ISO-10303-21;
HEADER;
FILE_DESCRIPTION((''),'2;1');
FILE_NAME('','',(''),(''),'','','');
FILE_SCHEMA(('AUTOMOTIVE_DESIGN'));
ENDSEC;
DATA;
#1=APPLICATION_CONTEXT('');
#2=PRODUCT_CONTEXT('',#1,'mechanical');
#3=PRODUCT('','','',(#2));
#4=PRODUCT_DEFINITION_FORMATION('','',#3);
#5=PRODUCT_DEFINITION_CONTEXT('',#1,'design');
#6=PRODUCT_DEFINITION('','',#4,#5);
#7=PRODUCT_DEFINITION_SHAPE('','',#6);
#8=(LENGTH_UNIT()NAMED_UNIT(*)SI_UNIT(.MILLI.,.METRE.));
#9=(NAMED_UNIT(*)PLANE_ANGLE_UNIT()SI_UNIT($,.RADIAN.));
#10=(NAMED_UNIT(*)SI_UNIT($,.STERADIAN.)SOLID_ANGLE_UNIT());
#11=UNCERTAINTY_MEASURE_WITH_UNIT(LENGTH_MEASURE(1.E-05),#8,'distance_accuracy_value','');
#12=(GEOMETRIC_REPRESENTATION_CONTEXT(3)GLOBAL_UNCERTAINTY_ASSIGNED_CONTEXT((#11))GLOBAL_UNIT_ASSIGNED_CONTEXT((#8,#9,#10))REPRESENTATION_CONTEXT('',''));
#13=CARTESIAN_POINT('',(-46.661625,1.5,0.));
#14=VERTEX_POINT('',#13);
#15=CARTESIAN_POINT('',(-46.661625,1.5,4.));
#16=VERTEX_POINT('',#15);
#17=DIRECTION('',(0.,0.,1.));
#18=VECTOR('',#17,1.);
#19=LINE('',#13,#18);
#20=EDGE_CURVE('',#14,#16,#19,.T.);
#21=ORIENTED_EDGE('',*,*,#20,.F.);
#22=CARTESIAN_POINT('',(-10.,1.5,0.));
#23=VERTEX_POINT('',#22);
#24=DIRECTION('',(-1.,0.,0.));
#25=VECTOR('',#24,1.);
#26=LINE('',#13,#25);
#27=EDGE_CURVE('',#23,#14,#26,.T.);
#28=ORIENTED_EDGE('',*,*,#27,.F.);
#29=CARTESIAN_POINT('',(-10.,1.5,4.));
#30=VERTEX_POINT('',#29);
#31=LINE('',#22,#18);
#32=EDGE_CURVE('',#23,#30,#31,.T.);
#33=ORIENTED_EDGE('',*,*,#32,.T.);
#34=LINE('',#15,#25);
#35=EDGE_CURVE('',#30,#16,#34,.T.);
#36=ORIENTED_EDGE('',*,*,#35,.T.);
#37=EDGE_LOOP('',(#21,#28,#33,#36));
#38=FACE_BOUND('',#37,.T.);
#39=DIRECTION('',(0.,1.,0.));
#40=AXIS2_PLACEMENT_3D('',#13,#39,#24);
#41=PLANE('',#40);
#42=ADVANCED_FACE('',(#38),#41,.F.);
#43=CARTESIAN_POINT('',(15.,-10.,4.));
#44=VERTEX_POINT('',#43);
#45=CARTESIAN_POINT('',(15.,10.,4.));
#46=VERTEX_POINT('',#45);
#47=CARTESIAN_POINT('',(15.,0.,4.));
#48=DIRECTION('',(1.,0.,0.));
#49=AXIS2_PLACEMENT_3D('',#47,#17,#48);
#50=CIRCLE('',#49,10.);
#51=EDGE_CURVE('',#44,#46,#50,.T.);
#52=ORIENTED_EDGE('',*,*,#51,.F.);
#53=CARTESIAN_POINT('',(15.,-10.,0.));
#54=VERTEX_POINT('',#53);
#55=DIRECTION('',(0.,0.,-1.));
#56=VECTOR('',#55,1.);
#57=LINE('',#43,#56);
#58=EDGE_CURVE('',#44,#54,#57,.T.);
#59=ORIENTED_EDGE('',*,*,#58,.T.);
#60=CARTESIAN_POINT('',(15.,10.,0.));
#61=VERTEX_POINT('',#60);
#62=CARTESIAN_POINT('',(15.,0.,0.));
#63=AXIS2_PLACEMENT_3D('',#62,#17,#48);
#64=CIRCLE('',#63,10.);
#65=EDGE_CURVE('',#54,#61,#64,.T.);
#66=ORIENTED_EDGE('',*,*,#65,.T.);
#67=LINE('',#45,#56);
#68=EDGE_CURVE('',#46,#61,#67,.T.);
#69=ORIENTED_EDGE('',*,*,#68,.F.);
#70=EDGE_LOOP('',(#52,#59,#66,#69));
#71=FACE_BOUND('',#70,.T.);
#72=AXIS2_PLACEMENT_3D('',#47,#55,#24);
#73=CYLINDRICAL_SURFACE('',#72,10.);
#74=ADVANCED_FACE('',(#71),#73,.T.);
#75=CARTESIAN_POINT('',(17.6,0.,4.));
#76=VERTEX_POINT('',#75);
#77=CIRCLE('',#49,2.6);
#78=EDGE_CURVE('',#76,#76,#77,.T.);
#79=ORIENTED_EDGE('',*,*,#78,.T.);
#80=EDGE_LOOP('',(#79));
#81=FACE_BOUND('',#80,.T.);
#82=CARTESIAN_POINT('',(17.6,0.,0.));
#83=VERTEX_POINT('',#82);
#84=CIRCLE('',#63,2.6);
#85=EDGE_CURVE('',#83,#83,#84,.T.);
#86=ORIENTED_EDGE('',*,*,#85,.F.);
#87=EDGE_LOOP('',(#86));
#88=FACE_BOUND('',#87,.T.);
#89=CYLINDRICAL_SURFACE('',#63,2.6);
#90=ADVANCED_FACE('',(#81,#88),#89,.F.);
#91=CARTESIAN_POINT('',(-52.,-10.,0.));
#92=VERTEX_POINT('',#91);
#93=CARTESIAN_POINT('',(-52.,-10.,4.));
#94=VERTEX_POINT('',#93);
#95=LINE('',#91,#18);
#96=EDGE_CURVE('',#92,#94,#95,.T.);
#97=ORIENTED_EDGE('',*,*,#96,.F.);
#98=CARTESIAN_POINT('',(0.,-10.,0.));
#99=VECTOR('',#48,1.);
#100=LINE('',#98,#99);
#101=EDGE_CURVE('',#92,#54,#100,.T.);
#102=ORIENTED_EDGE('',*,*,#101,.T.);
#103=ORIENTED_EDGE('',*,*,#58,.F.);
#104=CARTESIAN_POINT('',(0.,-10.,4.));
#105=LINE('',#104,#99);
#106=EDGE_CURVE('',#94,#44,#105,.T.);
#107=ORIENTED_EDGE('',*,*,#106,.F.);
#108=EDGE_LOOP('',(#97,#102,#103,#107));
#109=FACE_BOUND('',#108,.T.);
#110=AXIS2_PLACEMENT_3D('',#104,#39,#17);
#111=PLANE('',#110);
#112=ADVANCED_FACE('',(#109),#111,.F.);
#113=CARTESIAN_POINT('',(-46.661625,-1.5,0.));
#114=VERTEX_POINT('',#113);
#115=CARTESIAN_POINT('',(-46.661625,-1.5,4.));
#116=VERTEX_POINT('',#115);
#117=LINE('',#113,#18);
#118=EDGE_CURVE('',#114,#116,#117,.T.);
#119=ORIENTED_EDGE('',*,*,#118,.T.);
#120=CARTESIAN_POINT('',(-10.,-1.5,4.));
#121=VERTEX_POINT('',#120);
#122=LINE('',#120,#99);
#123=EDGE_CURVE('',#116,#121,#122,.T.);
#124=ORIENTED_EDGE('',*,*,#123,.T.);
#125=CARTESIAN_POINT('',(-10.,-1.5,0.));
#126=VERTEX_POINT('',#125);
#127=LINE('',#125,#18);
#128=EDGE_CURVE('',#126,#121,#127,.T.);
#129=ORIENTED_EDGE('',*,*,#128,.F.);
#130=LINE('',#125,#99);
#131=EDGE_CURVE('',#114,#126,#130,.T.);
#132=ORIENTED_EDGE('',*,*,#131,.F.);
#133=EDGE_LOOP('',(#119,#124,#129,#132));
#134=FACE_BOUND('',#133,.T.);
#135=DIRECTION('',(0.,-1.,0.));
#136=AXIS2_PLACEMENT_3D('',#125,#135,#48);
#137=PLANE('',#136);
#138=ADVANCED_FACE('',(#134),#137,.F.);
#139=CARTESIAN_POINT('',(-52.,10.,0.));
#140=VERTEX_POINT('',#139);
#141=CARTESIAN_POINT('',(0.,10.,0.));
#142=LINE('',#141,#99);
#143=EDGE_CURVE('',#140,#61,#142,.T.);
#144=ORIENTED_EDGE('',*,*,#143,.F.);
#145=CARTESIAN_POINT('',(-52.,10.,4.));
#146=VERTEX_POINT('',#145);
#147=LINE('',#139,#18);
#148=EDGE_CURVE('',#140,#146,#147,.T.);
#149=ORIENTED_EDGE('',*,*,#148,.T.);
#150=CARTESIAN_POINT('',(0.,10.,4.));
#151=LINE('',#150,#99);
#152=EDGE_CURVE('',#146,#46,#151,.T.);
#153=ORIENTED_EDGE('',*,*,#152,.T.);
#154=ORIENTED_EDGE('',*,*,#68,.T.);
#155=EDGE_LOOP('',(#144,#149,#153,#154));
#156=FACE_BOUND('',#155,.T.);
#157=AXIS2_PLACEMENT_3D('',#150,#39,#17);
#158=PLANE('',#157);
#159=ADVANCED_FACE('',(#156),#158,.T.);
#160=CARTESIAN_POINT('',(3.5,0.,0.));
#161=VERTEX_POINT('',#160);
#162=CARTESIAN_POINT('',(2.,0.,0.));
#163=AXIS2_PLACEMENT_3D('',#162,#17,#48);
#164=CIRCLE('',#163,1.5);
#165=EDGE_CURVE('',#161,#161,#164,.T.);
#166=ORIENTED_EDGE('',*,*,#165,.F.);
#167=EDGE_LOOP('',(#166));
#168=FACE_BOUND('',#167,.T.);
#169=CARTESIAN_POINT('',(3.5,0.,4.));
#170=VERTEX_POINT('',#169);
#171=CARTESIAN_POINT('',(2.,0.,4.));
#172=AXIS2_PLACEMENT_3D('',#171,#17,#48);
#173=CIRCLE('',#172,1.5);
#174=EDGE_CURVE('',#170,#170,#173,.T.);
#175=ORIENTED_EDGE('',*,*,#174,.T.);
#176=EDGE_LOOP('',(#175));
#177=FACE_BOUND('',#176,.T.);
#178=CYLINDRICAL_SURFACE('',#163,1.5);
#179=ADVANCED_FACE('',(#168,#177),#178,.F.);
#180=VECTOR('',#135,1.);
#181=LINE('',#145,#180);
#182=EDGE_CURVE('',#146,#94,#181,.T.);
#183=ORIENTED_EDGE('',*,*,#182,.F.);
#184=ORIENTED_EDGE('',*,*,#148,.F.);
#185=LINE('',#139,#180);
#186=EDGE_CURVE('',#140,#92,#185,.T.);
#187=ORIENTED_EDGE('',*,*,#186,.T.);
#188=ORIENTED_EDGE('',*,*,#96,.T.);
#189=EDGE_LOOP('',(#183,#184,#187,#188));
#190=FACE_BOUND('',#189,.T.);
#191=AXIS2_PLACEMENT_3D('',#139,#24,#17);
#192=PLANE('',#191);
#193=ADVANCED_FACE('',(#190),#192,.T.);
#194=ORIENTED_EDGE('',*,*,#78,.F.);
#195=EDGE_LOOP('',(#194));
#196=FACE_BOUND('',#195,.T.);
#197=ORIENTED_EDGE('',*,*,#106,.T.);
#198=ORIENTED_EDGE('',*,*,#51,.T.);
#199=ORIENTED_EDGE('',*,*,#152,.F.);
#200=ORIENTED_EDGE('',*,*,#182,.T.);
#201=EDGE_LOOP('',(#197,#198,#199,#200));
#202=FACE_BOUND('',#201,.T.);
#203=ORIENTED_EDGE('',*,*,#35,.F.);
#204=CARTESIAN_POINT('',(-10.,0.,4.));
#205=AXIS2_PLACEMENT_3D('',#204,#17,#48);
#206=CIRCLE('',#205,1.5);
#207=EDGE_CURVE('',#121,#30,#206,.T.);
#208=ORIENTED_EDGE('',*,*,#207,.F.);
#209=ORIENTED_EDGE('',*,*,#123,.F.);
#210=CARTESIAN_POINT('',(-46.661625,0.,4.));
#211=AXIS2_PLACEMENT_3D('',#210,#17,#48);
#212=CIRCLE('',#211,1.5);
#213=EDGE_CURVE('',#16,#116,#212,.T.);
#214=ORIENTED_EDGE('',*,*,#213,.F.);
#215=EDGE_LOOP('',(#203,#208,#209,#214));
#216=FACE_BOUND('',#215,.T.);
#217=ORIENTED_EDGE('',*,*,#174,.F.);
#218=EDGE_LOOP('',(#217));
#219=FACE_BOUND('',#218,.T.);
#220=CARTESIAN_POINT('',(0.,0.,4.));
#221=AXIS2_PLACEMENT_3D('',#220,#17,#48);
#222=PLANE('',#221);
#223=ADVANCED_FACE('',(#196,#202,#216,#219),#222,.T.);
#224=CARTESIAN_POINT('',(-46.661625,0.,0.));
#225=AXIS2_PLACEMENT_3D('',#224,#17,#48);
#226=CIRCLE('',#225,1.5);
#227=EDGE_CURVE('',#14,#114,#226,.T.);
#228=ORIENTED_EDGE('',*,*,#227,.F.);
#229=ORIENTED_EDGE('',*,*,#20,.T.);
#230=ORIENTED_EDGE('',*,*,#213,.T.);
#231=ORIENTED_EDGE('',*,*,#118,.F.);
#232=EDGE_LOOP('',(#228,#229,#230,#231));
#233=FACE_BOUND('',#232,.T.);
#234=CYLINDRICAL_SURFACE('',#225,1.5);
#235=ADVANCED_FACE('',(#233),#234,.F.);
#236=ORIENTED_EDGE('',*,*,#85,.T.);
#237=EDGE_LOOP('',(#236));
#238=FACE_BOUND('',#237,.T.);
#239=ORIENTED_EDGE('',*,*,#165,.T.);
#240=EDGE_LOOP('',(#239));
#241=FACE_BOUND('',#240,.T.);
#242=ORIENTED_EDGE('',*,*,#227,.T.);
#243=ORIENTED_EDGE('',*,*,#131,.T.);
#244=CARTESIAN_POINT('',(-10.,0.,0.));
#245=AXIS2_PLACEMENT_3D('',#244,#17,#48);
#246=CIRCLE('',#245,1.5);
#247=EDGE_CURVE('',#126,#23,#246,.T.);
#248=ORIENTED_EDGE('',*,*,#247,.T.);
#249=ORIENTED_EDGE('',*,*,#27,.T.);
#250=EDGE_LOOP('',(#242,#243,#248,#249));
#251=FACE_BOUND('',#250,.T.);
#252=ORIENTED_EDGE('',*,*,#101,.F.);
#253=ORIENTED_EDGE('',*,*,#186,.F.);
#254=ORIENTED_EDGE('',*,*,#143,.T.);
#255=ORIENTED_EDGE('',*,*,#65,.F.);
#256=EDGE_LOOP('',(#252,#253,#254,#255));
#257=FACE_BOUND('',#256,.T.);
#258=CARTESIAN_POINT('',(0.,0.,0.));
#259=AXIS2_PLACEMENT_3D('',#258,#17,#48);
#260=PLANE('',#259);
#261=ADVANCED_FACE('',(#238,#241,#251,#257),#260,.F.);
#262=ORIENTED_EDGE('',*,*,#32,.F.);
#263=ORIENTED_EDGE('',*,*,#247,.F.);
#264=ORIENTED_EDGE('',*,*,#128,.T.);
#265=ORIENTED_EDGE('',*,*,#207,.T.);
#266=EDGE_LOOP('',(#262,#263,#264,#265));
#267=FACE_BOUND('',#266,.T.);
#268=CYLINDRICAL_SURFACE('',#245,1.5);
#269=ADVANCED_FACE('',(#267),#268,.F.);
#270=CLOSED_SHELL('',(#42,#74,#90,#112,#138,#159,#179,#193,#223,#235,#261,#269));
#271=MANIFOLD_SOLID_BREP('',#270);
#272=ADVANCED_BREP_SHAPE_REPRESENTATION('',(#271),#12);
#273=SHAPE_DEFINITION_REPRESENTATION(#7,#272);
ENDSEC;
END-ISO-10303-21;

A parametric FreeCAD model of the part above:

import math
import FreeCAD as App
import Part
import Sketcher
from FreeCAD import Vector


def edges_at(feature, points):
    """Names of the edges that pass closest to the given points."""
    edges = feature.Shape.Edges
    near = lambda p: min(range(len(edges)), key=lambda i: edges[i].distToShape(Part.Vertex(*p))[0])
    return sorted({f"Edge{near(p) + 1}" for p in points})

doc = App.newDocument("Part")
body = doc.addObject("PartDesign::Body", "Body")

# Sketch on XY plane
sketch1 = body.newObject("Sketcher::SketchObject", "Sketch")
sketch1.AttachmentSupport = (doc.getObject("XY_Plane"), [""])
sketch1.MapMode = "FlatFace"
sketch1.addGeometry([
    Part.LineSegment(Vector(-15, -10, 0), Vector(15, -10, 0)),  # 0
    Part.ArcOfCircle(Part.Circle(Vector(15, 0, 0), Vector(0, 0, 1), 10), math.radians(-90), math.radians(0)),  # 1
    Part.ArcOfCircle(Part.Circle(Vector(15, 0, 0), Vector(0, 0, 1), 10), math.radians(0), math.radians(90)),  # 2
    Part.LineSegment(Vector(15, 10, 0), Vector(-15, 10, 0)),  # 3
    Part.LineSegment(Vector(-15, 10, 0), Vector(-15, -10, 0)),  # 4
], False)
sketch1.addConstraint([
    Sketcher.Constraint("Tangent", 0, 2, 1, 1),
    Sketcher.Constraint("Tangent", 1, 2, 2, 1),
    Sketcher.Constraint("Tangent", 2, 2, 3, 1),
    Sketcher.Constraint("Coincident", 3, 2, 4, 1),
    Sketcher.Constraint("Coincident", 4, 2, 0, 1),
    Sketcher.Constraint("Horizontal", 0),
    Sketcher.Constraint("Horizontal", 3),
    Sketcher.Constraint("Vertical", 4),
    Sketcher.Constraint("Equal", 1, 2),
    Sketcher.Constraint("Symmetric", 0, 2, 3, 2, -1, 1),
    Sketcher.Constraint("PointOnObject", 1, 2, -1),
    Sketcher.Constraint("Radius", 1, 10.0),
    Sketcher.Constraint("DistanceX", 0, 1, 0, 2, 30.0),
])
pad1 = body.newObject("PartDesign::Pad", "Pad")
pad1.Profile = sketch1
pad1.Length = 4

# Sketch on XY plane
sketch2 = body.newObject("Sketcher::SketchObject", "Sketch001")
sketch2.AttachmentSupport = (doc.getObject("XY_Plane"), [""])
sketch2.MapMode = "FlatFace"
sketch2.AttachmentOffset = App.Placement(Vector(0, 0, 4), App.Rotation())
sketch2.addGeometry(Part.Circle(Vector(15, 0, 0), Vector(0, 0, 1), 2.6), False)
sketch2.addConstraint([
    Sketcher.Constraint("PointOnObject", 0, 3, -1),
    Sketcher.Constraint("Diameter", 0, 5.2),
    Sketcher.Constraint("DistanceX", -1, 1, 0, 3, 15.0),
])
pocket1 = body.newObject("PartDesign::Pocket", "Pocket")
pocket1.Profile = sketch2
pocket1.Length = 4

# Sketch on XY plane
sketch3 = body.newObject("Sketcher::SketchObject", "Sketch002")
sketch3.AttachmentSupport = (doc.getObject("XY_Plane"), [""])
sketch3.MapMode = "FlatFace"
sketch3.AttachmentOffset = App.Placement(Vector(0, 0, 4), App.Rotation())
sketch3.addGeometry([
    Part.Circle(Vector(-10, 0, 0), Vector(0, 0, 1), 1.5),
    Part.Circle(Vector(2, 0, 0), Vector(0, 0, 1), 1.5),
], False)
sketch3.addConstraint([
    Sketcher.Constraint("Equal", 0, 1),
    Sketcher.Constraint("PointOnObject", 0, 3, -1),
    Sketcher.Constraint("PointOnObject", 1, 3, -1),
    Sketcher.Constraint("Diameter", 0, 3.0),
    Sketcher.Constraint("DistanceX", 0, 3, -1, 1, 10.0),
    Sketcher.Constraint("DistanceX", -1, 1, 1, 3, 2.0),
])
pocket2 = body.newObject("PartDesign::Pocket", "Pocket001")
pocket2.Profile = sketch3
pocket2.Length = 4
doc.recompute()

fillet = body.newObject("PartDesign::Fillet", "Fillet")
fillet.Base = (pocket2, edges_at(pocket2, [(-15, -10, 2), (-15, 10, 2)]))
fillet.Radius = 3

# Sketch on XY plane
sketch4 = body.newObject("Sketcher::SketchObject", "Sketch003")
sketch4.AttachmentSupport = (doc.getObject("XY_Plane"), [""])
sketch4.MapMode = "FlatFace"
sketch4.AttachmentOffset = App.Placement(Vector(0, 0, 4), App.Rotation())
sketch4.addGeometry([
    Part.LineSegment(Vector(-52, 10, 0), Vector(-52, -10, 0)),
    Part.LineSegment(Vector(-52, -10, 0), Vector(-12, -10, 0)),
    Part.LineSegment(Vector(-12, -10, 0), Vector(-12, 10, 0)),
    Part.LineSegment(Vector(-12, 10, 0), Vector(-52, 10, 0)),
], False)
sketch4.addConstraint([
    Sketcher.Constraint("Coincident", 0, 2, 1, 1),
    Sketcher.Constraint("Coincident", 1, 2, 2, 1),
    Sketcher.Constraint("Coincident", 2, 2, 3, 1),
    Sketcher.Constraint("Coincident", 3, 2, 0, 1),
    Sketcher.Constraint("Vertical", 0),
    Sketcher.Constraint("Horizontal", 1),
    Sketcher.Constraint("Vertical", 2),
    Sketcher.Constraint("Horizontal", 3),
    Sketcher.Constraint("DistanceX", 1, 1, 1, 2, 40.0),
    Sketcher.Constraint("DistanceY", 0, 2, 0, 1, 20.0),
    Sketcher.Constraint("DistanceX", 0, 2, -1, 1, 52.0),
    Sketcher.Constraint("DistanceY", 0, 2, -1, 1, 10.0),
])
pad2 = body.newObject("PartDesign::Pad", "Pad001")
pad2.Profile = sketch4
pad2.Length = 4
pad2.Reversed = True

# Sketch on XY plane
sketch5 = body.newObject("Sketcher::SketchObject", "Sketch004")
sketch5.AttachmentSupport = (doc.getObject("XY_Plane"), [""])
sketch5.MapMode = "FlatFace"
sketch5.AttachmentOffset = App.Placement(Vector(0, 0, 4), App.Rotation())
sketch5.addGeometry(Part.Circle(Vector(-46.7, 0, 0), Vector(0, 0, 1), 1.5), False)
sketch5.addConstraint([
    Sketcher.Constraint("PointOnObject", 0, 3, -1),
    Sketcher.Constraint("Diameter", 0, 3.0),
    Sketcher.Constraint("DistanceX", 0, 3, -1, 1, 46.661625),
])
pocket3 = body.newObject("PartDesign::Pocket", "Pocket002")
pocket3.Profile = sketch5
pocket3.Length = 4

# Sketch on XY plane
sketch6 = body.newObject("Sketcher::SketchObject", "Sketch005")
sketch6.AttachmentSupport = (doc.getObject("XY_Plane"), [""])
sketch6.MapMode = "FlatFace"
sketch6.AttachmentOffset = App.Placement(Vector(0, 0, 4), App.Rotation())
sketch6.addGeometry([
    Part.LineSegment(Vector(-46.7, 1.5, 0), Vector(-46.7, -1.5, 0)),
    Part.LineSegment(Vector(-46.7, -1.5, 0), Vector(-10, -1.5, 0)),
    Part.LineSegment(Vector(-10, -1.5, 0), Vector(-10, 1.5, 0)),
    Part.LineSegment(Vector(-10, 1.5, 0), Vector(-46.7, 1.5, 0)),
], False)
sketch6.addConstraint([
    Sketcher.Constraint("Coincident", 0, 2, 1, 1),
    Sketcher.Constraint("Coincident", 1, 2, 2, 1),
    Sketcher.Constraint("Coincident", 2, 2, 3, 1),
    Sketcher.Constraint("Coincident", 3, 2, 0, 1),
    Sketcher.Constraint("Vertical", 0),
    Sketcher.Constraint("Horizontal", 1),
    Sketcher.Constraint("Vertical", 2),
    Sketcher.Constraint("Horizontal", 3),
    Sketcher.Constraint("DistanceY", 0, 2, 0, 1, 3.0),
    Sketcher.Constraint("DistanceX", 1, 2, -1, 1, 10.0),
    Sketcher.Constraint("DistanceY", 0, 2, -1, 1, 1.5),
    Sketcher.Constraint("DistanceX", 1, 1, 1, 2, 36.661625),
])
pocket4 = body.newObject("PartDesign::Pocket", "Pocket003")
pocket4.Profile = sketch6
pocket4.Length = 4

doc.recompute()
